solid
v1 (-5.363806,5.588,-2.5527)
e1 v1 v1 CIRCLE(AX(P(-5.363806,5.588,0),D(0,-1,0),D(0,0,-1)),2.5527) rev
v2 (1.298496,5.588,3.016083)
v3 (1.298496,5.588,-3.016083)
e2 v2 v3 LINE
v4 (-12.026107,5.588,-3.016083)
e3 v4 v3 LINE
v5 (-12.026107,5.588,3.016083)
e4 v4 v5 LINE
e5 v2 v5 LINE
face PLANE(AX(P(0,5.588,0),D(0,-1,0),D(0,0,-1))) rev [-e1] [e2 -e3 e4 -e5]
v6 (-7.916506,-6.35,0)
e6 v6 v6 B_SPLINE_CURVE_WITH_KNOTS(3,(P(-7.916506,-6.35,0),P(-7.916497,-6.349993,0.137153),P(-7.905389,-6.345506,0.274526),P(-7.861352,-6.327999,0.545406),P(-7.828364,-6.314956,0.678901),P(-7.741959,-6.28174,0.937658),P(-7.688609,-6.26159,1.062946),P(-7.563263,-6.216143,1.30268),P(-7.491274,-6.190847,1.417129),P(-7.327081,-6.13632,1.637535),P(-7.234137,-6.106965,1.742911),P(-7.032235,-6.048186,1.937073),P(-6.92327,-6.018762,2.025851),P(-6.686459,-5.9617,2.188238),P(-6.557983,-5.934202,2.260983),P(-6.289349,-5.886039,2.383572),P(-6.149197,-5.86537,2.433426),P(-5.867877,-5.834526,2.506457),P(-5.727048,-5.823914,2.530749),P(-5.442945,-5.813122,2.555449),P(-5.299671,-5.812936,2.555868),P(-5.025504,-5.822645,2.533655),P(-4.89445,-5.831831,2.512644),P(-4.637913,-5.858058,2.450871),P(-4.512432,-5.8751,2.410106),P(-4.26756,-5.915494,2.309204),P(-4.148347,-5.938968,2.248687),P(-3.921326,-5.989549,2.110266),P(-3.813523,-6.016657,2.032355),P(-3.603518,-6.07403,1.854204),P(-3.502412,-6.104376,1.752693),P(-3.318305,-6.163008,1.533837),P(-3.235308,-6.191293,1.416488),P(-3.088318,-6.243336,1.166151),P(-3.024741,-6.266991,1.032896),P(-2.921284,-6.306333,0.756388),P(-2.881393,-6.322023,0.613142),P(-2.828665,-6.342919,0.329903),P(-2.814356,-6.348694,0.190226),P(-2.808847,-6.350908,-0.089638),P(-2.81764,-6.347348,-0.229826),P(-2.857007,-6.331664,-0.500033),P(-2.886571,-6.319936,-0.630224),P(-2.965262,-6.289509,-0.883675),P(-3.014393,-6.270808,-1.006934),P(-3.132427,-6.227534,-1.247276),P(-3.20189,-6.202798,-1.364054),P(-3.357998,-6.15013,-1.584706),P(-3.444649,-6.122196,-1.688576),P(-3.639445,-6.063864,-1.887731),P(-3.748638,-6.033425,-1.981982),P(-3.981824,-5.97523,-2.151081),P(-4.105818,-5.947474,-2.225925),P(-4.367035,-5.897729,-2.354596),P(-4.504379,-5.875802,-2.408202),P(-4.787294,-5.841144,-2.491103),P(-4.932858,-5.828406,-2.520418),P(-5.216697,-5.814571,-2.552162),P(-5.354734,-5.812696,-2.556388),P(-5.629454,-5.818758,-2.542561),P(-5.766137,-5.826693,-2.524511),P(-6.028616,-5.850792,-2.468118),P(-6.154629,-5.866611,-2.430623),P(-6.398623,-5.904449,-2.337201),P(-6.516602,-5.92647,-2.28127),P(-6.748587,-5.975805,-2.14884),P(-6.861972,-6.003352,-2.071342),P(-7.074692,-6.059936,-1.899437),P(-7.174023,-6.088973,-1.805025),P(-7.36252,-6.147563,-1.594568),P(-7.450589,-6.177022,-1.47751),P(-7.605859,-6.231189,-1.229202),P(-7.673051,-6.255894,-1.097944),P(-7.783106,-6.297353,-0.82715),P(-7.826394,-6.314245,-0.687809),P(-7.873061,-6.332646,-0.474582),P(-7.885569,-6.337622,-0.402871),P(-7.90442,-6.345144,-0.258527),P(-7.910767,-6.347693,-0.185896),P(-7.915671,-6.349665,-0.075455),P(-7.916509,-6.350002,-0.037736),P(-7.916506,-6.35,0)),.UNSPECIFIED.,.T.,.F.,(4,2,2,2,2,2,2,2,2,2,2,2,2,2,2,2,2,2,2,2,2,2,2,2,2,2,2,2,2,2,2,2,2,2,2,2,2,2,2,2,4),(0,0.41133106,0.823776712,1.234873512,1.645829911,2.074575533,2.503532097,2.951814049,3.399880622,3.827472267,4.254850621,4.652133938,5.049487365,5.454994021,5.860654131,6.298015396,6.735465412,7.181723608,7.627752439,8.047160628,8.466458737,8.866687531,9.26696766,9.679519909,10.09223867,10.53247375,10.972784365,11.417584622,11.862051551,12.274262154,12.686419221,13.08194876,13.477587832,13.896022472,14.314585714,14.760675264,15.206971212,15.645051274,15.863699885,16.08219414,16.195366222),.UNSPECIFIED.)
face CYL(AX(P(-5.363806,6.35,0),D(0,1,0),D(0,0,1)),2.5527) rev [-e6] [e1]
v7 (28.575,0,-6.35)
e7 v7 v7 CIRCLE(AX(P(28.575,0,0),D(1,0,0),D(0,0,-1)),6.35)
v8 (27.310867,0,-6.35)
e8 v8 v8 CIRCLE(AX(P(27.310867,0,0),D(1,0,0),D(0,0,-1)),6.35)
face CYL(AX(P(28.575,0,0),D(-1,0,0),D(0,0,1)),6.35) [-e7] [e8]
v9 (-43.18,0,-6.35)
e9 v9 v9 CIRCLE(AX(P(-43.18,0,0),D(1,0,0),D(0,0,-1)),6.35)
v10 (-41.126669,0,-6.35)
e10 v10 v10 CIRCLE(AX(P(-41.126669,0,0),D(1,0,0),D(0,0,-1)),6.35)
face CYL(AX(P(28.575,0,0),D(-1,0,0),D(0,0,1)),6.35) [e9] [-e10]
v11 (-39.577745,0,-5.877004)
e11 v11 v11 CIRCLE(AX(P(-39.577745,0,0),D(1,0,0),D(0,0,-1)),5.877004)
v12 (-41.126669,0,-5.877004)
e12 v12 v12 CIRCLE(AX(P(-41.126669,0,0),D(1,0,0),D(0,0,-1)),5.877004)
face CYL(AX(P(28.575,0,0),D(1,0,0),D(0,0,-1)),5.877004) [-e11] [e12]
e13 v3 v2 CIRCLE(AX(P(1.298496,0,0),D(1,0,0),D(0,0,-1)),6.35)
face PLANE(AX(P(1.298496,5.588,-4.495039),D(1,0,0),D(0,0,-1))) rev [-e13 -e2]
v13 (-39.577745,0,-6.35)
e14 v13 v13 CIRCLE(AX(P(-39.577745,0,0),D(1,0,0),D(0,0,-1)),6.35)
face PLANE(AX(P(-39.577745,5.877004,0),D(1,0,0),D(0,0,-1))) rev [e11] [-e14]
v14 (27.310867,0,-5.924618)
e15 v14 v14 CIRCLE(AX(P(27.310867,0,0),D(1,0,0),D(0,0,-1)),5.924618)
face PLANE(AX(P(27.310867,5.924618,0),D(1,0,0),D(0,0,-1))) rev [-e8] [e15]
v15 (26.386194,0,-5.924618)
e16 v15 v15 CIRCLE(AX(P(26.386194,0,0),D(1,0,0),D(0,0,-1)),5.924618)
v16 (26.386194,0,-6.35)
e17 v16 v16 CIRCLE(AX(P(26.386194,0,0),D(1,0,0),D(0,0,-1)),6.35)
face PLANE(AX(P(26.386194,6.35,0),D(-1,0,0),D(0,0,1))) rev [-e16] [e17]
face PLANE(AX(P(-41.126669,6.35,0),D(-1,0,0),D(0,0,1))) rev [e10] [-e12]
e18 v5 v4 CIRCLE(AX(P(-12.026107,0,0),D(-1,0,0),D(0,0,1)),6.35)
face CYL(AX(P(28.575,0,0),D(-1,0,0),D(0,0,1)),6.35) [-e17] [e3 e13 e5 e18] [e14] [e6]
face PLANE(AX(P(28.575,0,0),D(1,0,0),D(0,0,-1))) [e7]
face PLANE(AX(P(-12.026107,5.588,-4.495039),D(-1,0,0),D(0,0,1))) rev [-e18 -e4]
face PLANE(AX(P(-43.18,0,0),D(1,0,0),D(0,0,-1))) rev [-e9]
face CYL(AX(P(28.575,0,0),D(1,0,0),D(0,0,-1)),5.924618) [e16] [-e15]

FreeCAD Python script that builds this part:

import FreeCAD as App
import Part
import Sketcher
from FreeCAD import Vector
Q = App.Units.Quantity


def add_polygon(sketch, points):
    """Adds a closed chain of lines whose ends are joined by coincident constraints."""
    first, n = sketch.GeometryCount, len(points)
    for a, b in zip(points, points[1:] + points[:1]):
        sketch.addGeometry(Part.LineSegment(App.Vector(*a, 0), App.Vector(*b, 0)), False)
    for i in range(n):
        sketch.addConstraint(Sketcher.Constraint("Coincident", first + i, 2, first + (i + 1) % n, 1))

doc = App.newDocument("Part")
body = doc.addObject("PartDesign::Body", "Body")

# Sketch on YZ plane
sketch1 = body.newObject("Sketcher::SketchObject", "Sketch")
sketch1.AttachmentSupport = (doc.getObject("YZ_Plane"), [""])
sketch1.MapMode = "FlatFace"
sketch1.addGeometry(Part.Circle(Vector(0, 0, 0), Vector(0, 0, 1), 6), False)
sketch1.addConstraint(Sketcher.Constraint("Coincident", 0, 3, -1, 1))
sketch1.addConstraint(Sketcher.Constraint("Diameter", 0, Q("0.5 in")))
pad1 = body.newObject("PartDesign::Pad", "Pad")
pad1.Profile = sketch1
pad1.Length = Q("1.125 in")

# Sketch on XY plane
sketch2 = body.newObject("Sketcher::SketchObject", "Sketch001")
sketch2.AttachmentSupport = (doc.getObject("XY_Plane"), [""])
sketch2.MapMode = "FlatFace"
add_polygon(sketch2, [(26.39, 6.35), (26.39, 5.92), (27.31, 5.92), (27.31, 6.35)])  # lines 0-3
sketch2.addConstraint(Sketcher.Constraint("Vertical", 0))
sketch2.addConstraint(Sketcher.Constraint("Horizontal", 1))
sketch2.addConstraint(Sketcher.Constraint("Vertical", 2))
sketch2.addConstraint(Sketcher.Constraint("Horizontal", 3))
sketch2.addConstraint(Sketcher.Constraint("DistanceY", -1, 1, 2, 2, Q("0.25 in")))
sketch2.addConstraint(Sketcher.Constraint("DistanceY", 0, 2, 0, 1, Q("0.425382 mm")))
sketch2.addConstraint(Sketcher.Constraint("DistanceX", 1, 1, 1, 2, Q("0.924673 mm")))
sketch2.addConstraint(Sketcher.Constraint("DistanceX", -1, 1, 0, 2, Q("26.386194 mm")))
groove = body.newObject("PartDesign::Groove", "Groove")
groove.Profile = sketch2
groove.ReferenceAxis = (sketch2, ["H_Axis"])
groove.Angle = 360

# Sketch on YZ plane
sketch3 = body.newObject("Sketcher::SketchObject", "Sketch002")
sketch3.AttachmentSupport = (doc.getObject("YZ_Plane"), [""])
sketch3.MapMode = "FlatFace"
sketch3.AttachmentOffset = App.Placement(Vector(0, 0, -1.7 * 25.4), App.Rotation())
sketch3.addGeometry(Part.Circle(Vector(0, 0, 0), Vector(0, 0, 1), 6), False)
sketch3.addConstraint(Sketcher.Constraint("Coincident", 0, 3, -1, 1))
sketch3.addConstraint(Sketcher.Constraint("Diameter", 0, Q("0.5 in")))
pad2 = body.newObject("PartDesign::Pad", "Pad001")
pad2.Profile = sketch3
pad2.Length = Q("1.7 in")

# Sketch on XY plane
sketch4 = body.newObject("Sketcher::SketchObject", "Sketch003")
sketch4.AttachmentSupport = (doc.getObject("XY_Plane"), [""])
sketch4.MapMode = "FlatFace"
add_polygon(sketch4, [(-41.13, 6.35), (-41.13, 5.88), (-39.58, 5.88), (-39.58, 6.35)])  # lines 0-3
sketch4.addConstraint(Sketcher.Constraint("Vertical", 0))
sketch4.addConstraint(Sketcher.Constraint("Horizontal", 1))
sketch4.addConstraint(Sketcher.Constraint("Vertical", 2))
sketch4.addConstraint(Sketcher.Constraint("Horizontal", 3))
sketch4.addConstraint(Sketcher.Constraint("DistanceY", -1, 1, 2, 2, Q("0.25 in")))
sketch4.addConstraint(Sketcher.Constraint("DistanceX", 1, 1, 1, 2, Q("1.548925 mm")))
sketch4.addConstraint(Sketcher.Constraint("DistanceY", 0, 2, 0, 1, Q("0.472996 mm")))
sketch4.addConstraint(Sketcher.Constraint("DistanceX", 0, 2, -1, 1, Q("41.126669 mm")))
groove2 = body.newObject("PartDesign::Groove", "Groove001")
groove2.Profile = sketch4
groove2.ReferenceAxis = (sketch4, ["H_Axis"])
groove2.Angle = 360

# Sketch on XZ plane
sketch5 = body.newObject("Sketcher::SketchObject", "Sketch004")
sketch5.AttachmentSupport = (doc.getObject("XZ_Plane"), [""])
sketch5.MapMode = "FlatFace"
sketch5.AttachmentOffset = App.Placement(Vector(0, 0, -0.25 * 25.4), App.Rotation())
sketch5.addGeometry(Part.Circle(Vector(-5.4, 0, 0), Vector(0, 0, 1), 2.6), False)
sketch5.addConstraint(Sketcher.Constraint("PointOnObject", 0, 3, -1))
sketch5.addConstraint(Sketcher.Constraint("Diameter", 0, Q("0.201 in")))
sketch5.addConstraint(Sketcher.Constraint("DistanceX", 0, 3, -1, 1, Q("5.363806 mm")))
doc.recompute()
hole = body.newObject("PartDesign::Hole", "Hole")
hole.Profile = sketch5
hole.ThreadType = "None"
hole.Diameter = Q("0.201 in")
hole.DepthType = "ThroughAll"
hole.Reversed = True

# Sketch on XZ plane
sketch6 = body.newObject("Sketcher::SketchObject", "Sketch005")
sketch6.AttachmentSupport = (doc.getObject("XZ_Plane"), [""])
sketch6.MapMode = "FlatFace"
sketch6.AttachmentOffset = App.Placement(Vector(0, 0, -0.25 * 25.4), App.Rotation())
add_polygon(sketch6, [(-12, -4), (-12, 4), (1, 4), (1, -4)])  # lines 0-3
sketch6.addConstraint(Sketcher.Constraint("Vertical", 0))
sketch6.addConstraint(Sketcher.Constraint("Horizontal", 1))
sketch6.addConstraint(Sketcher.Constraint("Vertical", 2))
sketch6.addConstraint(Sketcher.Constraint("Horizontal", 3))
sketch6.addConstraint(Sketcher.Constraint("DistanceX", 1, 1, 1, 2, Q("13.324603 mm")))
sketch6.addConstraint(Sketcher.Constraint("DistanceY", 0, 1, 0, 2, Q("8.990077 mm")))
sketch6.addConstraint(Sketcher.Constraint("DistanceY", -1, 1, 0, 2, Q("4.495039 mm")))
sketch6.addConstraint(Sketcher.Constraint("DistanceX", 0, 2, -1, 1, Q("12.026107 mm")))
pocket1 = body.newObject("PartDesign::Pocket", "Pocket")
pocket1.Profile = sketch6
pocket1.Length = Q("0.03 in")
pocket1.Reversed = True

doc.recompute()
